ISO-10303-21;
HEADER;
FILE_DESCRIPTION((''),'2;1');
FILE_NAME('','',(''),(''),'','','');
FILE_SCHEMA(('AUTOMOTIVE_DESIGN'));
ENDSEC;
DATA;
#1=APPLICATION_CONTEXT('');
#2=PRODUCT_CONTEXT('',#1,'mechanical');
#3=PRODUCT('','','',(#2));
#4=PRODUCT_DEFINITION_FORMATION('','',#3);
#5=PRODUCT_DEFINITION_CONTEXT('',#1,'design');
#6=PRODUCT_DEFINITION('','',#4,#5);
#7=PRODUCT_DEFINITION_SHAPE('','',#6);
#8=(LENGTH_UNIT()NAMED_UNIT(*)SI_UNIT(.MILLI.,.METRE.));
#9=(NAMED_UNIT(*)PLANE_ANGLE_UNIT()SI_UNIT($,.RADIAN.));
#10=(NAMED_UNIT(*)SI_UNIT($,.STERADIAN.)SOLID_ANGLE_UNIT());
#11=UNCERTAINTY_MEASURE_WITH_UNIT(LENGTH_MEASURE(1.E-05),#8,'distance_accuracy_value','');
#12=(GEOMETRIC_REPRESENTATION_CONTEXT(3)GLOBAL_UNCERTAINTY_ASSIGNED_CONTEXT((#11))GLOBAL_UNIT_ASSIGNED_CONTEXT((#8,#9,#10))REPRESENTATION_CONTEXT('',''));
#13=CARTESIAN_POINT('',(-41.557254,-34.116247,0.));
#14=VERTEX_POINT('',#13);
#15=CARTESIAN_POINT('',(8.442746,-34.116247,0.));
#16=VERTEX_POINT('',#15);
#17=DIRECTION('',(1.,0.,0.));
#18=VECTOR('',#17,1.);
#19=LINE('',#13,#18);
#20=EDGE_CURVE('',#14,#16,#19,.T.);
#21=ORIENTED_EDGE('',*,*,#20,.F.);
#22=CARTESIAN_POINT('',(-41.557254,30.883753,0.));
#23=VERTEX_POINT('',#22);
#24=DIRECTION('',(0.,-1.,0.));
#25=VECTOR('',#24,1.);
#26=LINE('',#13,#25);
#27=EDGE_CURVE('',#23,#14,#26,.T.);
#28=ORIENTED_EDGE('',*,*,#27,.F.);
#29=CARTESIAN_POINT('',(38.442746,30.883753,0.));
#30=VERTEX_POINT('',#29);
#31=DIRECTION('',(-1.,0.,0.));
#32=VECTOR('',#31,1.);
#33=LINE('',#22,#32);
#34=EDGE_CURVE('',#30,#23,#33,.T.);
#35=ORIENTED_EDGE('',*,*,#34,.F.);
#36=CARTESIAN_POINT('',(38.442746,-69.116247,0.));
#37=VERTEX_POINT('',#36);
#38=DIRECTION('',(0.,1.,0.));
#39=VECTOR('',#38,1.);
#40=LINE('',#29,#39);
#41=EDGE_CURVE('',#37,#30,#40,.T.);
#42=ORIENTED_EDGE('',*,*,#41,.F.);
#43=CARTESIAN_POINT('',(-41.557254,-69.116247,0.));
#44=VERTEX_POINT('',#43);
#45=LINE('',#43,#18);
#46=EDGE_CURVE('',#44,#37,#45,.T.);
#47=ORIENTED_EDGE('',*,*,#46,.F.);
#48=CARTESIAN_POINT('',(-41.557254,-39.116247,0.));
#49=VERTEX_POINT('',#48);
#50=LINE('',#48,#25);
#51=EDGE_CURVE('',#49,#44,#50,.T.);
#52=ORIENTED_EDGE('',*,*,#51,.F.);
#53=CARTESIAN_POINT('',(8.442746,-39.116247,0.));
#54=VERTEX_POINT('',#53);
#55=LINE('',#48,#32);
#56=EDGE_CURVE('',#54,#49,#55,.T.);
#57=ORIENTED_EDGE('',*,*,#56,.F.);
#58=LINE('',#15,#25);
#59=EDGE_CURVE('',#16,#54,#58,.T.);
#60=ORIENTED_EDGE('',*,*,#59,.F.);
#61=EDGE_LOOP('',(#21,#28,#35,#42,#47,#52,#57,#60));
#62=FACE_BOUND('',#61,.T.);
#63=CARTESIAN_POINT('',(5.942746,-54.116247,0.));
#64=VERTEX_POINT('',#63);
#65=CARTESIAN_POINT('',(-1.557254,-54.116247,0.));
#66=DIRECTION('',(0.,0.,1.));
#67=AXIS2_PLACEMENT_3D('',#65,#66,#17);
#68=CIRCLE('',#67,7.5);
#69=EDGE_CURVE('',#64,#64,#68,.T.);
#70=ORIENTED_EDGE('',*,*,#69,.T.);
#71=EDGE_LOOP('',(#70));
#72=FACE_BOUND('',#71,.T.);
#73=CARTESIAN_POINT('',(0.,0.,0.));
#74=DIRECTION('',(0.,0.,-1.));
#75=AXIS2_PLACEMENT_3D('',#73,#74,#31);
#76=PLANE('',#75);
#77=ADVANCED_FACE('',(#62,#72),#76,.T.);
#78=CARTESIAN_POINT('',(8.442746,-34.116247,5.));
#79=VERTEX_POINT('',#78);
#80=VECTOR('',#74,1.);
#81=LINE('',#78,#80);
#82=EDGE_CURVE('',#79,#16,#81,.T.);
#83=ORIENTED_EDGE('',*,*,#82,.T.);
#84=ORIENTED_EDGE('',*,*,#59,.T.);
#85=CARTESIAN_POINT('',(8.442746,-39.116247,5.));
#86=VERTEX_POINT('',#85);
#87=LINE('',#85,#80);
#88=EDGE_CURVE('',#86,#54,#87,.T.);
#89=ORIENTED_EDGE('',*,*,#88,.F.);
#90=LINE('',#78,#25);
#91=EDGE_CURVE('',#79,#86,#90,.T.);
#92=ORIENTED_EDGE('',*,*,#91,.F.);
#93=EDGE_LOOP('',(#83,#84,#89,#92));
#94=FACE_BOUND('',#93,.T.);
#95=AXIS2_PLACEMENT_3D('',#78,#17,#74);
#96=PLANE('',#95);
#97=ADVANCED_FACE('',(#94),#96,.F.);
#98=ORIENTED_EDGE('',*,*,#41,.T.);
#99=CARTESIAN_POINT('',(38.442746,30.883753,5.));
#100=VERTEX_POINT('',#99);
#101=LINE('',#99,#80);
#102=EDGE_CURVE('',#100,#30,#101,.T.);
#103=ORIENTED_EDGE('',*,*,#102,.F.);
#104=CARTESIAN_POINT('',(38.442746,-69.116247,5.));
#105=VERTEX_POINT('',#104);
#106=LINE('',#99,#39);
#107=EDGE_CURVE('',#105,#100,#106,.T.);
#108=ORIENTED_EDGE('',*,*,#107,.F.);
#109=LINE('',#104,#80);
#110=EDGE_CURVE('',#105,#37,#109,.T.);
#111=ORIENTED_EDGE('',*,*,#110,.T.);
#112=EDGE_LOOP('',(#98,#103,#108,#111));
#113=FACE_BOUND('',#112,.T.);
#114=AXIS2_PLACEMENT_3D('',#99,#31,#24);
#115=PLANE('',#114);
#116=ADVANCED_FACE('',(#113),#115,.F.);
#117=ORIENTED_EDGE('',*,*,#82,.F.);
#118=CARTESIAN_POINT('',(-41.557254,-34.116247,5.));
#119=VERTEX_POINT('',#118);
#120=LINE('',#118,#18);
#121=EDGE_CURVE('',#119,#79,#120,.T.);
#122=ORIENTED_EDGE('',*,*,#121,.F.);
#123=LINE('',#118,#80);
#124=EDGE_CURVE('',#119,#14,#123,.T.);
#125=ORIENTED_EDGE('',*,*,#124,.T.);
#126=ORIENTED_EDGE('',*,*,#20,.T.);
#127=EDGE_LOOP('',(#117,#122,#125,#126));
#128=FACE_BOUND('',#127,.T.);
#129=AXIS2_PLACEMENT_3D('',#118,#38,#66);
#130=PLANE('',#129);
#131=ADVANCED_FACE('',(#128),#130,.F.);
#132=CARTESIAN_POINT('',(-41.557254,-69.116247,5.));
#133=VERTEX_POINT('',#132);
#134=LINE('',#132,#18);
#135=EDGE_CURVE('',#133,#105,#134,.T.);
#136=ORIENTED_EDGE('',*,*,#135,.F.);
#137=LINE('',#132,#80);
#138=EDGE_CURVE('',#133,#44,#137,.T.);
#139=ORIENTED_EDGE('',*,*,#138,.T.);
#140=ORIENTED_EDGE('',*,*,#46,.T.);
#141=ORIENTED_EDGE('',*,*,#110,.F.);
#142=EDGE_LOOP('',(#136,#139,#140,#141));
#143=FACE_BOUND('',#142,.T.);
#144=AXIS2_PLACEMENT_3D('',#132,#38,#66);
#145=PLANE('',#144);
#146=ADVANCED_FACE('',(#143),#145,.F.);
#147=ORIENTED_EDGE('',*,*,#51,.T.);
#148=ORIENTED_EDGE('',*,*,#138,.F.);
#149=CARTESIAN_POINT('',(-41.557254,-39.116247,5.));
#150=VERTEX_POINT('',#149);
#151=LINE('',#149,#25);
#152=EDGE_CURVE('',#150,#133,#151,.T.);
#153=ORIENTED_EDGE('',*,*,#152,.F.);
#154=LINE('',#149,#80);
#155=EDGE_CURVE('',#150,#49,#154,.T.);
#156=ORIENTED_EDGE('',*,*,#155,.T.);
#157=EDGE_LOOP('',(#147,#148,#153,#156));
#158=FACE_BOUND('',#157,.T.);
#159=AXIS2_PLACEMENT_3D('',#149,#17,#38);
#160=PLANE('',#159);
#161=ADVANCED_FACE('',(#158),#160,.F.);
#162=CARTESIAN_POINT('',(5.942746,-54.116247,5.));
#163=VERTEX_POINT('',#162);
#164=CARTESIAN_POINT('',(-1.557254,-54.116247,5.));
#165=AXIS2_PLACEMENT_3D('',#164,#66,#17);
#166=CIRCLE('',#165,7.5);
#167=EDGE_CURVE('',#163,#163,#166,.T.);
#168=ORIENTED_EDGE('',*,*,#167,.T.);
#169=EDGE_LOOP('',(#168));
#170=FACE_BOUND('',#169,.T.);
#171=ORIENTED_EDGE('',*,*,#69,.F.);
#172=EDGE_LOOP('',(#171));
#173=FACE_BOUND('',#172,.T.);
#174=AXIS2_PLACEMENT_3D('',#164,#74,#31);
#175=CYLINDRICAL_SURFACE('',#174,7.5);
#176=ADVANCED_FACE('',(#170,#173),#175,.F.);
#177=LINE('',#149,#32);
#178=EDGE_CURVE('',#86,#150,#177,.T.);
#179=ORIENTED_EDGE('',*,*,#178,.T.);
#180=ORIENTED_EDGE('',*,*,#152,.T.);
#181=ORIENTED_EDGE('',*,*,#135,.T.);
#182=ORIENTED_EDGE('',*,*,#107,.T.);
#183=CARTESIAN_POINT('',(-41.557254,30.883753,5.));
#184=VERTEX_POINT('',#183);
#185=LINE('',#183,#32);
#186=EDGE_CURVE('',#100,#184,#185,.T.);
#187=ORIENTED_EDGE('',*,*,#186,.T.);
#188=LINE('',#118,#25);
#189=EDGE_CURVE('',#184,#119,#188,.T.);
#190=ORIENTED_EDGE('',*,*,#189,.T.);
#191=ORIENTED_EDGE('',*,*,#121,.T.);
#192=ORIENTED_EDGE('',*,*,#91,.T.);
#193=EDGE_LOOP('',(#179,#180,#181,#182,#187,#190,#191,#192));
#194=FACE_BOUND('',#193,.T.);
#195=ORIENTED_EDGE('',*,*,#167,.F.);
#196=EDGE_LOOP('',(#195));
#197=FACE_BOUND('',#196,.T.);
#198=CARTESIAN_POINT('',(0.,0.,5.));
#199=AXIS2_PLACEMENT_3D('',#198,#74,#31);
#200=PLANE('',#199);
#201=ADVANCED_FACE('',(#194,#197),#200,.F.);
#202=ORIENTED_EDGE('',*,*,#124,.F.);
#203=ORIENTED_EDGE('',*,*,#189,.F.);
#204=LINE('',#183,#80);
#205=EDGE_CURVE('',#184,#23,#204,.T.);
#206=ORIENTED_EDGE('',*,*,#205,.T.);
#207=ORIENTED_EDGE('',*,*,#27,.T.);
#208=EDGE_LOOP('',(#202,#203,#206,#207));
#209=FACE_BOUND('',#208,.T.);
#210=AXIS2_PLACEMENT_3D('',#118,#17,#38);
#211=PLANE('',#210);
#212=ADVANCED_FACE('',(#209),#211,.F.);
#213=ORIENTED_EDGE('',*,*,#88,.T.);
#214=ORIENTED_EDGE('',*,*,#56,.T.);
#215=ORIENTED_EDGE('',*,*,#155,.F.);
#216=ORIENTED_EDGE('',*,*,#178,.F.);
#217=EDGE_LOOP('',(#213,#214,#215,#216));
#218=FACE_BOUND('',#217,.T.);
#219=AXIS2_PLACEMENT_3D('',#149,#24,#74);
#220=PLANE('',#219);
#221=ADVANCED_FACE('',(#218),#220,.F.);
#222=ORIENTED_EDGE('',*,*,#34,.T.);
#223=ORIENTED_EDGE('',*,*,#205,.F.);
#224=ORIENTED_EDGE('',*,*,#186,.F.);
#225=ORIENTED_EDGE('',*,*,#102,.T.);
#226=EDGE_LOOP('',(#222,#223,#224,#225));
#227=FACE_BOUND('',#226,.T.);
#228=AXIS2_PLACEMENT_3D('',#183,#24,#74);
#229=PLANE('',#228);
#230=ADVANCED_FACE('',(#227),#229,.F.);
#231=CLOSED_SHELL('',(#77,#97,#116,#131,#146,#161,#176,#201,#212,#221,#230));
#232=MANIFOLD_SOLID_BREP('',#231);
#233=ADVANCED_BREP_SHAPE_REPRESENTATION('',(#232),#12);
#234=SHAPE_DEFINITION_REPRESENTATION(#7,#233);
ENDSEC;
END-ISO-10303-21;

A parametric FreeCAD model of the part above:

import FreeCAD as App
import Part
import Sketcher

V = App.Vector


def add_polygon(sketch, points):
    """Adds a closed chain of lines whose ends are joined by coincident constraints."""
    first, n = sketch.GeometryCount, len(points)
    for a, b in zip(points, points[1:] + points[:1]):
        sketch.addGeometry(Part.LineSegment(App.Vector(*a, 0), App.Vector(*b, 0)), False)
    for i in range(n):
        sketch.addConstraint(Sketcher.Constraint("Coincident", first + i, 2, first + (i + 1) % n, 1))

doc = App.newDocument("Part")
body = doc.addObject("PartDesign::Body", "Body")

sketch1 = body.newObject("Sketcher::SketchObject", "Sketch")
sketch1.AttachmentSupport = (doc.getObject("XY_Plane"), [""])
sketch1.MapMode = "FlatFace"
add_polygon(sketch1, [(-42, -39), (-42, -69), (38, -69), (38, 31), (-42, 31), (-42, -34), (8, -34), (8, -39)])
sketch1.addGeometry(Part.Circle(V(-2, -54, 0), V(0, 0, 1), 8), False)
sketch1.addConstraint(Sketcher.Constraint("Vertical", 0))
sketch1.addConstraint(Sketcher.Constraint("Horizontal", 1))
sketch1.addConstraint(Sketcher.Constraint("Vertical", 2))
sketch1.addConstraint(Sketcher.Constraint("Horizontal", 3))
sketch1.addConstraint(Sketcher.Constraint("Vertical", 4))
sketch1.addConstraint(Sketcher.Constraint("Horizontal", 5))
sketch1.addConstraint(Sketcher.Constraint("Vertical", 6))
sketch1.addConstraint(Sketcher.Constraint("Horizontal", 7))
sketch1.addConstraint(Sketcher.Constraint("Vertical", 0, 2, 3, 2))
sketch1.addConstraint(Sketcher.Constraint("Diameter", 8, 15.0))
sketch1.addConstraint(Sketcher.Constraint("DistanceX", 1, 1, 1, 2, 80.0))
sketch1.addConstraint(Sketcher.Constraint("DistanceX", 5, 1, 5, 2, 50.0))
sketch1.addConstraint(Sketcher.Constraint("DistanceY", 0, 2, 0, 1, 30.0))
sketch1.addConstraint(Sketcher.Constraint("DistanceY", 2, 1, 2, 2, 100.0))
sketch1.addConstraint(Sketcher.Constraint("DistanceY", 4, 2, 4, 1, 65.0))
sketch1.addConstraint(Sketcher.Constraint("DistanceX", 0, 2, 8, 3, 40.0))
sketch1.addConstraint(Sketcher.Constraint("DistanceY", 0, 2, 8, 3, 15.0))
sketch1.addConstraint(Sketcher.Constraint("DistanceX", 8, 3, -1, 1, 1.557254))
sketch1.addConstraint(Sketcher.Constraint("DistanceY", 8, 3, -1, 1, 54.116247))
pad1 = body.newObject("PartDesign::Pad", "Pad")
pad1.Profile = sketch1
pad1.Length = 5

doc.recompute()
